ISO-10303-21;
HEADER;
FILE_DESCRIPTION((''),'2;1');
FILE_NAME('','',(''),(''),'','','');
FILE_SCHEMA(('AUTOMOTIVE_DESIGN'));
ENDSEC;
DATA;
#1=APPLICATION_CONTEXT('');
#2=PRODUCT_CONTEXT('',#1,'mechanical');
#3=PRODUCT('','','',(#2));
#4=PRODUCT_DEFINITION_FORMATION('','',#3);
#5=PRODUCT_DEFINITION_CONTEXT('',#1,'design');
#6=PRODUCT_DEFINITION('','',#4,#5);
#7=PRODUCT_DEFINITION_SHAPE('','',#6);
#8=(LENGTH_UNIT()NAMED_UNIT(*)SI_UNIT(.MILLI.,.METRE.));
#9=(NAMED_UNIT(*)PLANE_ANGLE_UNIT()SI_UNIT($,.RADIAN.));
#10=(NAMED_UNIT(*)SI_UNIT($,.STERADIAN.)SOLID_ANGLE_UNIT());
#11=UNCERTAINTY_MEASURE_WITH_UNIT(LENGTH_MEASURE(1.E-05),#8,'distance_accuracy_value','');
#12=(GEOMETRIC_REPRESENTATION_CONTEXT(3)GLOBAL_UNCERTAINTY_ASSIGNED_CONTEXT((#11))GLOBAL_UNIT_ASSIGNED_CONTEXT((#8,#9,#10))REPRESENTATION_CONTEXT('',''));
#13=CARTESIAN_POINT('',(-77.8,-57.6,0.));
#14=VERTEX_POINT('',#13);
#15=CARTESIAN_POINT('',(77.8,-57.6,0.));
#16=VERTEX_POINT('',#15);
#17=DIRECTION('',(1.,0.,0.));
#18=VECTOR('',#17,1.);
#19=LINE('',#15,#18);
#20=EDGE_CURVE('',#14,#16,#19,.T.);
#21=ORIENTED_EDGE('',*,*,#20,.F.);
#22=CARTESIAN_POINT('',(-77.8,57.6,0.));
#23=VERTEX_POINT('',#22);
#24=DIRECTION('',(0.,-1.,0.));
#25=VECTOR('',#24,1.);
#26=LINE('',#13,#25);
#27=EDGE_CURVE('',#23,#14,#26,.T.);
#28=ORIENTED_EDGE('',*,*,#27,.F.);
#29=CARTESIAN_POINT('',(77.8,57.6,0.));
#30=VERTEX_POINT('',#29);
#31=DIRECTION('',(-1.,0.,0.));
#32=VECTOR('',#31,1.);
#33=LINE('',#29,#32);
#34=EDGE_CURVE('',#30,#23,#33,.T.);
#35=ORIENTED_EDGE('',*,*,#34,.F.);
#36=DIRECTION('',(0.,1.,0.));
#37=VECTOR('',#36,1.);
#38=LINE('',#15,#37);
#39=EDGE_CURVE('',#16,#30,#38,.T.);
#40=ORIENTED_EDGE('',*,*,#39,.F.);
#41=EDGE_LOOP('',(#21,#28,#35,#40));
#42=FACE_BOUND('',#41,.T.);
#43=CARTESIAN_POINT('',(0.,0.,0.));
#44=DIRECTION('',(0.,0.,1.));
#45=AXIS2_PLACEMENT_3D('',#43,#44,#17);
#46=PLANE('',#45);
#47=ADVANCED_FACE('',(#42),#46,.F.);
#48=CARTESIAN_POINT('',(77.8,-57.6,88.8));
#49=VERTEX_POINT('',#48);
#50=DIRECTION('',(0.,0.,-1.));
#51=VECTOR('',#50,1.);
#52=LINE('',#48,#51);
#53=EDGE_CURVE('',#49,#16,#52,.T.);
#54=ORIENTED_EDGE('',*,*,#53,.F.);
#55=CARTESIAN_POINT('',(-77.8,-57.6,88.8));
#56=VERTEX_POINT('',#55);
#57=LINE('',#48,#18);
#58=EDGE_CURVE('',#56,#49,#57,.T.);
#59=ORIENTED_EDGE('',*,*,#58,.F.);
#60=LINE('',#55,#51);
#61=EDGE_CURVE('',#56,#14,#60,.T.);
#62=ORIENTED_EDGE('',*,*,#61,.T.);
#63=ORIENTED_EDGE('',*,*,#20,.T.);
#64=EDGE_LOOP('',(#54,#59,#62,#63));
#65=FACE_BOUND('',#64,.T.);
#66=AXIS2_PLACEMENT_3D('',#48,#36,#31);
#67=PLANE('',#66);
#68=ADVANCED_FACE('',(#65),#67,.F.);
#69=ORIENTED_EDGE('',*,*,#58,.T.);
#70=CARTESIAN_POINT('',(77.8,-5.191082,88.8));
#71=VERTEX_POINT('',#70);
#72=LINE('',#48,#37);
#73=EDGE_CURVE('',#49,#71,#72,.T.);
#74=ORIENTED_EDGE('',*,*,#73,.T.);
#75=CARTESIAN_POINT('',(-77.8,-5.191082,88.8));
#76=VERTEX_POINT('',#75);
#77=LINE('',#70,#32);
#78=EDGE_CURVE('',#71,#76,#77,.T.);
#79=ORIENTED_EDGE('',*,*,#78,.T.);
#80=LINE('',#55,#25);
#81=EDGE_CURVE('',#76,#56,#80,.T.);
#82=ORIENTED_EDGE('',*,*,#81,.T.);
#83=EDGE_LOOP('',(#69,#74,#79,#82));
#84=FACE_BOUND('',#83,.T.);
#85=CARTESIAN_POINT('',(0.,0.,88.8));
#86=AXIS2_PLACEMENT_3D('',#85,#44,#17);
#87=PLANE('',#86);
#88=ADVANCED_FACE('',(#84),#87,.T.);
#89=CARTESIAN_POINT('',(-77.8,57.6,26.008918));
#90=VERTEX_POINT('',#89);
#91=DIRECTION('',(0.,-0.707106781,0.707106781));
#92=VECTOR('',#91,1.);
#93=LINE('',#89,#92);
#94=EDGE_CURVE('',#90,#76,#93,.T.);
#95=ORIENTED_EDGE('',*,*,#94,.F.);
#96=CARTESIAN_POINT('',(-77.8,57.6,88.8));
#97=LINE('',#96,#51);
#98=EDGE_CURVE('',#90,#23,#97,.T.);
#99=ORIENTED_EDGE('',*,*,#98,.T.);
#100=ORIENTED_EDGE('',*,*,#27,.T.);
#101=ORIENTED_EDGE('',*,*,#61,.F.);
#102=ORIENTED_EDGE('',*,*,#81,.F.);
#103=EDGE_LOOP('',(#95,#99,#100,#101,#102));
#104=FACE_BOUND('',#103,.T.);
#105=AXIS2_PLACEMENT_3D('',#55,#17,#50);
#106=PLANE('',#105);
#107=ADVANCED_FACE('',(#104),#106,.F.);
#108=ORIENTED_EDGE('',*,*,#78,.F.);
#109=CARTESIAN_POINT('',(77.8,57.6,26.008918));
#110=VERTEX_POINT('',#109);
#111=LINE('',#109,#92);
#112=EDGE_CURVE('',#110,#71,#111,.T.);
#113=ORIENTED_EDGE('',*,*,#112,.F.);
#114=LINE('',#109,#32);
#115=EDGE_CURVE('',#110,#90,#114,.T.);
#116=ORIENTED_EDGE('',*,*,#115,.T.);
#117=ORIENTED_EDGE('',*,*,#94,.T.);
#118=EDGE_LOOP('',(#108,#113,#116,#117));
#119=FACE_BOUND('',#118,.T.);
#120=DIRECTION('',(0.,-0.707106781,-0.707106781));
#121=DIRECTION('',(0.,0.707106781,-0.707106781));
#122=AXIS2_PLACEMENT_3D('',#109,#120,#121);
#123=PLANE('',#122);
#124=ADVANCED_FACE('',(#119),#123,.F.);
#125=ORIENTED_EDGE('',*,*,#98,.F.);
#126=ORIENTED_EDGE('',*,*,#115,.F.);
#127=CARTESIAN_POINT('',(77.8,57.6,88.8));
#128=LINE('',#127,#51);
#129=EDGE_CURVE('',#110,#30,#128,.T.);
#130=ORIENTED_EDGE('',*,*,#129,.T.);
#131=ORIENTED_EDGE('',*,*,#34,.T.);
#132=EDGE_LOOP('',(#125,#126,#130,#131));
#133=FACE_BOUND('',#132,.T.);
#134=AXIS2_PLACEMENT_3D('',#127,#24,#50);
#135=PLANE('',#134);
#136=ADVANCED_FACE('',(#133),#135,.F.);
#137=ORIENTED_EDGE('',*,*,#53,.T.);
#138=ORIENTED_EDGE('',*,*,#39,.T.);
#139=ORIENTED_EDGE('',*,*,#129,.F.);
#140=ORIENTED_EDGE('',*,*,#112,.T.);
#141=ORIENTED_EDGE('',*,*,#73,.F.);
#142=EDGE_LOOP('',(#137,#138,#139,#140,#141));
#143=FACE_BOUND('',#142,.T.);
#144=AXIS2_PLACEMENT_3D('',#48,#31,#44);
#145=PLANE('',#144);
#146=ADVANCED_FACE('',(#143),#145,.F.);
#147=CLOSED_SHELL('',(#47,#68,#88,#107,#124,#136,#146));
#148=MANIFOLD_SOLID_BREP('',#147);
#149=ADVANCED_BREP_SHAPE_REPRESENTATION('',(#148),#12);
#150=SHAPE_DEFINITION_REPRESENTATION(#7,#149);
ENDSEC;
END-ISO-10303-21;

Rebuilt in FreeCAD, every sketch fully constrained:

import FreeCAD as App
import Part
import Sketcher

V = App.Vector
Q = App.Units.Quantity


def add_polygon(sketch, points):
    """Adds a closed chain of lines whose ends are joined by coincident constraints."""
    first, n = sketch.GeometryCount, len(points)
    for a, b in zip(points, points[1:] + points[:1]):
        sketch.addGeometry(Part.LineSegment(App.Vector(*a, 0), App.Vector(*b, 0)), False)
    for i in range(n):
        sketch.addConstraint(Sketcher.Constraint("Coincident", first + i, 2, first + (i + 1) % n, 1))

doc = App.newDocument("Part")
body = doc.addObject("PartDesign::Body", "Body")

# Sketch on XY plane
sketch1 = body.newObject("Sketcher::SketchObject", "Sketch")
sketch1.AttachmentSupport = (doc.getObject("XY_Plane"), [""])
sketch1.MapMode = "FlatFace"
add_polygon(sketch1, [(-77.8, 57.6), (-77.8, -57.6), (77.8, -57.6), (77.8, 57.6)])  # lines 0-3
sketch1.addConstraint([
    Sketcher.Constraint("Vertical", 0),
    Sketcher.Constraint("Horizontal", 1),
    Sketcher.Constraint("Vertical", 2),
    Sketcher.Constraint("Horizontal", 3),
    Sketcher.Constraint("Symmetric", 0, 2, 2, 2, -1, 1),
    Sketcher.Constraint("DistanceX", 1, 1, 1, 2, Q("155.6 mm")),
    Sketcher.Constraint("DistanceY", 0, 2, 0, 1, Q("115.2 mm")),
])
pad1 = body.newObject("PartDesign::Pad", "Pad")
pad1.Profile = sketch1
pad1.Length = 88.8

# Sketch on YZ plane
sketch2 = body.newObject("Sketcher::SketchObject", "Sketch001")
sketch2.AttachmentSupport = (doc.getObject("YZ_Plane"), [""])
sketch2.MapMode = "FlatFace"
sketch2.AttachmentOffset = App.Placement(V(0, 0, -77.8), App.Rotation())
add_polygon(sketch2, [(57.6, 26.008918), (-5.191082, 88.8), (57.6, 88.8)])  # lines 0-2
sketch2.addConstraint([
    Sketcher.Constraint("Horizontal", 1),
    Sketcher.Constraint("Vertical", 2),
    Sketcher.Constraint("Equal", 1, 2),
    Sketcher.Constraint("Distance", 0, Q("88.8 mm")),
    Sketcher.Constraint("DistanceY", -1, 1, 0, 2, Q("88.8 mm")),
    Sketcher.Constraint("DistanceX", -1, 1, 1, 2, Q("57.6 mm")),
])
pocket1 = body.newObject("PartDesign::Pocket", "Pocket")
pocket1.Profile = sketch2
pocket1.Type = "ThroughAll"
pocket1.Reversed = True

doc.recompute()
